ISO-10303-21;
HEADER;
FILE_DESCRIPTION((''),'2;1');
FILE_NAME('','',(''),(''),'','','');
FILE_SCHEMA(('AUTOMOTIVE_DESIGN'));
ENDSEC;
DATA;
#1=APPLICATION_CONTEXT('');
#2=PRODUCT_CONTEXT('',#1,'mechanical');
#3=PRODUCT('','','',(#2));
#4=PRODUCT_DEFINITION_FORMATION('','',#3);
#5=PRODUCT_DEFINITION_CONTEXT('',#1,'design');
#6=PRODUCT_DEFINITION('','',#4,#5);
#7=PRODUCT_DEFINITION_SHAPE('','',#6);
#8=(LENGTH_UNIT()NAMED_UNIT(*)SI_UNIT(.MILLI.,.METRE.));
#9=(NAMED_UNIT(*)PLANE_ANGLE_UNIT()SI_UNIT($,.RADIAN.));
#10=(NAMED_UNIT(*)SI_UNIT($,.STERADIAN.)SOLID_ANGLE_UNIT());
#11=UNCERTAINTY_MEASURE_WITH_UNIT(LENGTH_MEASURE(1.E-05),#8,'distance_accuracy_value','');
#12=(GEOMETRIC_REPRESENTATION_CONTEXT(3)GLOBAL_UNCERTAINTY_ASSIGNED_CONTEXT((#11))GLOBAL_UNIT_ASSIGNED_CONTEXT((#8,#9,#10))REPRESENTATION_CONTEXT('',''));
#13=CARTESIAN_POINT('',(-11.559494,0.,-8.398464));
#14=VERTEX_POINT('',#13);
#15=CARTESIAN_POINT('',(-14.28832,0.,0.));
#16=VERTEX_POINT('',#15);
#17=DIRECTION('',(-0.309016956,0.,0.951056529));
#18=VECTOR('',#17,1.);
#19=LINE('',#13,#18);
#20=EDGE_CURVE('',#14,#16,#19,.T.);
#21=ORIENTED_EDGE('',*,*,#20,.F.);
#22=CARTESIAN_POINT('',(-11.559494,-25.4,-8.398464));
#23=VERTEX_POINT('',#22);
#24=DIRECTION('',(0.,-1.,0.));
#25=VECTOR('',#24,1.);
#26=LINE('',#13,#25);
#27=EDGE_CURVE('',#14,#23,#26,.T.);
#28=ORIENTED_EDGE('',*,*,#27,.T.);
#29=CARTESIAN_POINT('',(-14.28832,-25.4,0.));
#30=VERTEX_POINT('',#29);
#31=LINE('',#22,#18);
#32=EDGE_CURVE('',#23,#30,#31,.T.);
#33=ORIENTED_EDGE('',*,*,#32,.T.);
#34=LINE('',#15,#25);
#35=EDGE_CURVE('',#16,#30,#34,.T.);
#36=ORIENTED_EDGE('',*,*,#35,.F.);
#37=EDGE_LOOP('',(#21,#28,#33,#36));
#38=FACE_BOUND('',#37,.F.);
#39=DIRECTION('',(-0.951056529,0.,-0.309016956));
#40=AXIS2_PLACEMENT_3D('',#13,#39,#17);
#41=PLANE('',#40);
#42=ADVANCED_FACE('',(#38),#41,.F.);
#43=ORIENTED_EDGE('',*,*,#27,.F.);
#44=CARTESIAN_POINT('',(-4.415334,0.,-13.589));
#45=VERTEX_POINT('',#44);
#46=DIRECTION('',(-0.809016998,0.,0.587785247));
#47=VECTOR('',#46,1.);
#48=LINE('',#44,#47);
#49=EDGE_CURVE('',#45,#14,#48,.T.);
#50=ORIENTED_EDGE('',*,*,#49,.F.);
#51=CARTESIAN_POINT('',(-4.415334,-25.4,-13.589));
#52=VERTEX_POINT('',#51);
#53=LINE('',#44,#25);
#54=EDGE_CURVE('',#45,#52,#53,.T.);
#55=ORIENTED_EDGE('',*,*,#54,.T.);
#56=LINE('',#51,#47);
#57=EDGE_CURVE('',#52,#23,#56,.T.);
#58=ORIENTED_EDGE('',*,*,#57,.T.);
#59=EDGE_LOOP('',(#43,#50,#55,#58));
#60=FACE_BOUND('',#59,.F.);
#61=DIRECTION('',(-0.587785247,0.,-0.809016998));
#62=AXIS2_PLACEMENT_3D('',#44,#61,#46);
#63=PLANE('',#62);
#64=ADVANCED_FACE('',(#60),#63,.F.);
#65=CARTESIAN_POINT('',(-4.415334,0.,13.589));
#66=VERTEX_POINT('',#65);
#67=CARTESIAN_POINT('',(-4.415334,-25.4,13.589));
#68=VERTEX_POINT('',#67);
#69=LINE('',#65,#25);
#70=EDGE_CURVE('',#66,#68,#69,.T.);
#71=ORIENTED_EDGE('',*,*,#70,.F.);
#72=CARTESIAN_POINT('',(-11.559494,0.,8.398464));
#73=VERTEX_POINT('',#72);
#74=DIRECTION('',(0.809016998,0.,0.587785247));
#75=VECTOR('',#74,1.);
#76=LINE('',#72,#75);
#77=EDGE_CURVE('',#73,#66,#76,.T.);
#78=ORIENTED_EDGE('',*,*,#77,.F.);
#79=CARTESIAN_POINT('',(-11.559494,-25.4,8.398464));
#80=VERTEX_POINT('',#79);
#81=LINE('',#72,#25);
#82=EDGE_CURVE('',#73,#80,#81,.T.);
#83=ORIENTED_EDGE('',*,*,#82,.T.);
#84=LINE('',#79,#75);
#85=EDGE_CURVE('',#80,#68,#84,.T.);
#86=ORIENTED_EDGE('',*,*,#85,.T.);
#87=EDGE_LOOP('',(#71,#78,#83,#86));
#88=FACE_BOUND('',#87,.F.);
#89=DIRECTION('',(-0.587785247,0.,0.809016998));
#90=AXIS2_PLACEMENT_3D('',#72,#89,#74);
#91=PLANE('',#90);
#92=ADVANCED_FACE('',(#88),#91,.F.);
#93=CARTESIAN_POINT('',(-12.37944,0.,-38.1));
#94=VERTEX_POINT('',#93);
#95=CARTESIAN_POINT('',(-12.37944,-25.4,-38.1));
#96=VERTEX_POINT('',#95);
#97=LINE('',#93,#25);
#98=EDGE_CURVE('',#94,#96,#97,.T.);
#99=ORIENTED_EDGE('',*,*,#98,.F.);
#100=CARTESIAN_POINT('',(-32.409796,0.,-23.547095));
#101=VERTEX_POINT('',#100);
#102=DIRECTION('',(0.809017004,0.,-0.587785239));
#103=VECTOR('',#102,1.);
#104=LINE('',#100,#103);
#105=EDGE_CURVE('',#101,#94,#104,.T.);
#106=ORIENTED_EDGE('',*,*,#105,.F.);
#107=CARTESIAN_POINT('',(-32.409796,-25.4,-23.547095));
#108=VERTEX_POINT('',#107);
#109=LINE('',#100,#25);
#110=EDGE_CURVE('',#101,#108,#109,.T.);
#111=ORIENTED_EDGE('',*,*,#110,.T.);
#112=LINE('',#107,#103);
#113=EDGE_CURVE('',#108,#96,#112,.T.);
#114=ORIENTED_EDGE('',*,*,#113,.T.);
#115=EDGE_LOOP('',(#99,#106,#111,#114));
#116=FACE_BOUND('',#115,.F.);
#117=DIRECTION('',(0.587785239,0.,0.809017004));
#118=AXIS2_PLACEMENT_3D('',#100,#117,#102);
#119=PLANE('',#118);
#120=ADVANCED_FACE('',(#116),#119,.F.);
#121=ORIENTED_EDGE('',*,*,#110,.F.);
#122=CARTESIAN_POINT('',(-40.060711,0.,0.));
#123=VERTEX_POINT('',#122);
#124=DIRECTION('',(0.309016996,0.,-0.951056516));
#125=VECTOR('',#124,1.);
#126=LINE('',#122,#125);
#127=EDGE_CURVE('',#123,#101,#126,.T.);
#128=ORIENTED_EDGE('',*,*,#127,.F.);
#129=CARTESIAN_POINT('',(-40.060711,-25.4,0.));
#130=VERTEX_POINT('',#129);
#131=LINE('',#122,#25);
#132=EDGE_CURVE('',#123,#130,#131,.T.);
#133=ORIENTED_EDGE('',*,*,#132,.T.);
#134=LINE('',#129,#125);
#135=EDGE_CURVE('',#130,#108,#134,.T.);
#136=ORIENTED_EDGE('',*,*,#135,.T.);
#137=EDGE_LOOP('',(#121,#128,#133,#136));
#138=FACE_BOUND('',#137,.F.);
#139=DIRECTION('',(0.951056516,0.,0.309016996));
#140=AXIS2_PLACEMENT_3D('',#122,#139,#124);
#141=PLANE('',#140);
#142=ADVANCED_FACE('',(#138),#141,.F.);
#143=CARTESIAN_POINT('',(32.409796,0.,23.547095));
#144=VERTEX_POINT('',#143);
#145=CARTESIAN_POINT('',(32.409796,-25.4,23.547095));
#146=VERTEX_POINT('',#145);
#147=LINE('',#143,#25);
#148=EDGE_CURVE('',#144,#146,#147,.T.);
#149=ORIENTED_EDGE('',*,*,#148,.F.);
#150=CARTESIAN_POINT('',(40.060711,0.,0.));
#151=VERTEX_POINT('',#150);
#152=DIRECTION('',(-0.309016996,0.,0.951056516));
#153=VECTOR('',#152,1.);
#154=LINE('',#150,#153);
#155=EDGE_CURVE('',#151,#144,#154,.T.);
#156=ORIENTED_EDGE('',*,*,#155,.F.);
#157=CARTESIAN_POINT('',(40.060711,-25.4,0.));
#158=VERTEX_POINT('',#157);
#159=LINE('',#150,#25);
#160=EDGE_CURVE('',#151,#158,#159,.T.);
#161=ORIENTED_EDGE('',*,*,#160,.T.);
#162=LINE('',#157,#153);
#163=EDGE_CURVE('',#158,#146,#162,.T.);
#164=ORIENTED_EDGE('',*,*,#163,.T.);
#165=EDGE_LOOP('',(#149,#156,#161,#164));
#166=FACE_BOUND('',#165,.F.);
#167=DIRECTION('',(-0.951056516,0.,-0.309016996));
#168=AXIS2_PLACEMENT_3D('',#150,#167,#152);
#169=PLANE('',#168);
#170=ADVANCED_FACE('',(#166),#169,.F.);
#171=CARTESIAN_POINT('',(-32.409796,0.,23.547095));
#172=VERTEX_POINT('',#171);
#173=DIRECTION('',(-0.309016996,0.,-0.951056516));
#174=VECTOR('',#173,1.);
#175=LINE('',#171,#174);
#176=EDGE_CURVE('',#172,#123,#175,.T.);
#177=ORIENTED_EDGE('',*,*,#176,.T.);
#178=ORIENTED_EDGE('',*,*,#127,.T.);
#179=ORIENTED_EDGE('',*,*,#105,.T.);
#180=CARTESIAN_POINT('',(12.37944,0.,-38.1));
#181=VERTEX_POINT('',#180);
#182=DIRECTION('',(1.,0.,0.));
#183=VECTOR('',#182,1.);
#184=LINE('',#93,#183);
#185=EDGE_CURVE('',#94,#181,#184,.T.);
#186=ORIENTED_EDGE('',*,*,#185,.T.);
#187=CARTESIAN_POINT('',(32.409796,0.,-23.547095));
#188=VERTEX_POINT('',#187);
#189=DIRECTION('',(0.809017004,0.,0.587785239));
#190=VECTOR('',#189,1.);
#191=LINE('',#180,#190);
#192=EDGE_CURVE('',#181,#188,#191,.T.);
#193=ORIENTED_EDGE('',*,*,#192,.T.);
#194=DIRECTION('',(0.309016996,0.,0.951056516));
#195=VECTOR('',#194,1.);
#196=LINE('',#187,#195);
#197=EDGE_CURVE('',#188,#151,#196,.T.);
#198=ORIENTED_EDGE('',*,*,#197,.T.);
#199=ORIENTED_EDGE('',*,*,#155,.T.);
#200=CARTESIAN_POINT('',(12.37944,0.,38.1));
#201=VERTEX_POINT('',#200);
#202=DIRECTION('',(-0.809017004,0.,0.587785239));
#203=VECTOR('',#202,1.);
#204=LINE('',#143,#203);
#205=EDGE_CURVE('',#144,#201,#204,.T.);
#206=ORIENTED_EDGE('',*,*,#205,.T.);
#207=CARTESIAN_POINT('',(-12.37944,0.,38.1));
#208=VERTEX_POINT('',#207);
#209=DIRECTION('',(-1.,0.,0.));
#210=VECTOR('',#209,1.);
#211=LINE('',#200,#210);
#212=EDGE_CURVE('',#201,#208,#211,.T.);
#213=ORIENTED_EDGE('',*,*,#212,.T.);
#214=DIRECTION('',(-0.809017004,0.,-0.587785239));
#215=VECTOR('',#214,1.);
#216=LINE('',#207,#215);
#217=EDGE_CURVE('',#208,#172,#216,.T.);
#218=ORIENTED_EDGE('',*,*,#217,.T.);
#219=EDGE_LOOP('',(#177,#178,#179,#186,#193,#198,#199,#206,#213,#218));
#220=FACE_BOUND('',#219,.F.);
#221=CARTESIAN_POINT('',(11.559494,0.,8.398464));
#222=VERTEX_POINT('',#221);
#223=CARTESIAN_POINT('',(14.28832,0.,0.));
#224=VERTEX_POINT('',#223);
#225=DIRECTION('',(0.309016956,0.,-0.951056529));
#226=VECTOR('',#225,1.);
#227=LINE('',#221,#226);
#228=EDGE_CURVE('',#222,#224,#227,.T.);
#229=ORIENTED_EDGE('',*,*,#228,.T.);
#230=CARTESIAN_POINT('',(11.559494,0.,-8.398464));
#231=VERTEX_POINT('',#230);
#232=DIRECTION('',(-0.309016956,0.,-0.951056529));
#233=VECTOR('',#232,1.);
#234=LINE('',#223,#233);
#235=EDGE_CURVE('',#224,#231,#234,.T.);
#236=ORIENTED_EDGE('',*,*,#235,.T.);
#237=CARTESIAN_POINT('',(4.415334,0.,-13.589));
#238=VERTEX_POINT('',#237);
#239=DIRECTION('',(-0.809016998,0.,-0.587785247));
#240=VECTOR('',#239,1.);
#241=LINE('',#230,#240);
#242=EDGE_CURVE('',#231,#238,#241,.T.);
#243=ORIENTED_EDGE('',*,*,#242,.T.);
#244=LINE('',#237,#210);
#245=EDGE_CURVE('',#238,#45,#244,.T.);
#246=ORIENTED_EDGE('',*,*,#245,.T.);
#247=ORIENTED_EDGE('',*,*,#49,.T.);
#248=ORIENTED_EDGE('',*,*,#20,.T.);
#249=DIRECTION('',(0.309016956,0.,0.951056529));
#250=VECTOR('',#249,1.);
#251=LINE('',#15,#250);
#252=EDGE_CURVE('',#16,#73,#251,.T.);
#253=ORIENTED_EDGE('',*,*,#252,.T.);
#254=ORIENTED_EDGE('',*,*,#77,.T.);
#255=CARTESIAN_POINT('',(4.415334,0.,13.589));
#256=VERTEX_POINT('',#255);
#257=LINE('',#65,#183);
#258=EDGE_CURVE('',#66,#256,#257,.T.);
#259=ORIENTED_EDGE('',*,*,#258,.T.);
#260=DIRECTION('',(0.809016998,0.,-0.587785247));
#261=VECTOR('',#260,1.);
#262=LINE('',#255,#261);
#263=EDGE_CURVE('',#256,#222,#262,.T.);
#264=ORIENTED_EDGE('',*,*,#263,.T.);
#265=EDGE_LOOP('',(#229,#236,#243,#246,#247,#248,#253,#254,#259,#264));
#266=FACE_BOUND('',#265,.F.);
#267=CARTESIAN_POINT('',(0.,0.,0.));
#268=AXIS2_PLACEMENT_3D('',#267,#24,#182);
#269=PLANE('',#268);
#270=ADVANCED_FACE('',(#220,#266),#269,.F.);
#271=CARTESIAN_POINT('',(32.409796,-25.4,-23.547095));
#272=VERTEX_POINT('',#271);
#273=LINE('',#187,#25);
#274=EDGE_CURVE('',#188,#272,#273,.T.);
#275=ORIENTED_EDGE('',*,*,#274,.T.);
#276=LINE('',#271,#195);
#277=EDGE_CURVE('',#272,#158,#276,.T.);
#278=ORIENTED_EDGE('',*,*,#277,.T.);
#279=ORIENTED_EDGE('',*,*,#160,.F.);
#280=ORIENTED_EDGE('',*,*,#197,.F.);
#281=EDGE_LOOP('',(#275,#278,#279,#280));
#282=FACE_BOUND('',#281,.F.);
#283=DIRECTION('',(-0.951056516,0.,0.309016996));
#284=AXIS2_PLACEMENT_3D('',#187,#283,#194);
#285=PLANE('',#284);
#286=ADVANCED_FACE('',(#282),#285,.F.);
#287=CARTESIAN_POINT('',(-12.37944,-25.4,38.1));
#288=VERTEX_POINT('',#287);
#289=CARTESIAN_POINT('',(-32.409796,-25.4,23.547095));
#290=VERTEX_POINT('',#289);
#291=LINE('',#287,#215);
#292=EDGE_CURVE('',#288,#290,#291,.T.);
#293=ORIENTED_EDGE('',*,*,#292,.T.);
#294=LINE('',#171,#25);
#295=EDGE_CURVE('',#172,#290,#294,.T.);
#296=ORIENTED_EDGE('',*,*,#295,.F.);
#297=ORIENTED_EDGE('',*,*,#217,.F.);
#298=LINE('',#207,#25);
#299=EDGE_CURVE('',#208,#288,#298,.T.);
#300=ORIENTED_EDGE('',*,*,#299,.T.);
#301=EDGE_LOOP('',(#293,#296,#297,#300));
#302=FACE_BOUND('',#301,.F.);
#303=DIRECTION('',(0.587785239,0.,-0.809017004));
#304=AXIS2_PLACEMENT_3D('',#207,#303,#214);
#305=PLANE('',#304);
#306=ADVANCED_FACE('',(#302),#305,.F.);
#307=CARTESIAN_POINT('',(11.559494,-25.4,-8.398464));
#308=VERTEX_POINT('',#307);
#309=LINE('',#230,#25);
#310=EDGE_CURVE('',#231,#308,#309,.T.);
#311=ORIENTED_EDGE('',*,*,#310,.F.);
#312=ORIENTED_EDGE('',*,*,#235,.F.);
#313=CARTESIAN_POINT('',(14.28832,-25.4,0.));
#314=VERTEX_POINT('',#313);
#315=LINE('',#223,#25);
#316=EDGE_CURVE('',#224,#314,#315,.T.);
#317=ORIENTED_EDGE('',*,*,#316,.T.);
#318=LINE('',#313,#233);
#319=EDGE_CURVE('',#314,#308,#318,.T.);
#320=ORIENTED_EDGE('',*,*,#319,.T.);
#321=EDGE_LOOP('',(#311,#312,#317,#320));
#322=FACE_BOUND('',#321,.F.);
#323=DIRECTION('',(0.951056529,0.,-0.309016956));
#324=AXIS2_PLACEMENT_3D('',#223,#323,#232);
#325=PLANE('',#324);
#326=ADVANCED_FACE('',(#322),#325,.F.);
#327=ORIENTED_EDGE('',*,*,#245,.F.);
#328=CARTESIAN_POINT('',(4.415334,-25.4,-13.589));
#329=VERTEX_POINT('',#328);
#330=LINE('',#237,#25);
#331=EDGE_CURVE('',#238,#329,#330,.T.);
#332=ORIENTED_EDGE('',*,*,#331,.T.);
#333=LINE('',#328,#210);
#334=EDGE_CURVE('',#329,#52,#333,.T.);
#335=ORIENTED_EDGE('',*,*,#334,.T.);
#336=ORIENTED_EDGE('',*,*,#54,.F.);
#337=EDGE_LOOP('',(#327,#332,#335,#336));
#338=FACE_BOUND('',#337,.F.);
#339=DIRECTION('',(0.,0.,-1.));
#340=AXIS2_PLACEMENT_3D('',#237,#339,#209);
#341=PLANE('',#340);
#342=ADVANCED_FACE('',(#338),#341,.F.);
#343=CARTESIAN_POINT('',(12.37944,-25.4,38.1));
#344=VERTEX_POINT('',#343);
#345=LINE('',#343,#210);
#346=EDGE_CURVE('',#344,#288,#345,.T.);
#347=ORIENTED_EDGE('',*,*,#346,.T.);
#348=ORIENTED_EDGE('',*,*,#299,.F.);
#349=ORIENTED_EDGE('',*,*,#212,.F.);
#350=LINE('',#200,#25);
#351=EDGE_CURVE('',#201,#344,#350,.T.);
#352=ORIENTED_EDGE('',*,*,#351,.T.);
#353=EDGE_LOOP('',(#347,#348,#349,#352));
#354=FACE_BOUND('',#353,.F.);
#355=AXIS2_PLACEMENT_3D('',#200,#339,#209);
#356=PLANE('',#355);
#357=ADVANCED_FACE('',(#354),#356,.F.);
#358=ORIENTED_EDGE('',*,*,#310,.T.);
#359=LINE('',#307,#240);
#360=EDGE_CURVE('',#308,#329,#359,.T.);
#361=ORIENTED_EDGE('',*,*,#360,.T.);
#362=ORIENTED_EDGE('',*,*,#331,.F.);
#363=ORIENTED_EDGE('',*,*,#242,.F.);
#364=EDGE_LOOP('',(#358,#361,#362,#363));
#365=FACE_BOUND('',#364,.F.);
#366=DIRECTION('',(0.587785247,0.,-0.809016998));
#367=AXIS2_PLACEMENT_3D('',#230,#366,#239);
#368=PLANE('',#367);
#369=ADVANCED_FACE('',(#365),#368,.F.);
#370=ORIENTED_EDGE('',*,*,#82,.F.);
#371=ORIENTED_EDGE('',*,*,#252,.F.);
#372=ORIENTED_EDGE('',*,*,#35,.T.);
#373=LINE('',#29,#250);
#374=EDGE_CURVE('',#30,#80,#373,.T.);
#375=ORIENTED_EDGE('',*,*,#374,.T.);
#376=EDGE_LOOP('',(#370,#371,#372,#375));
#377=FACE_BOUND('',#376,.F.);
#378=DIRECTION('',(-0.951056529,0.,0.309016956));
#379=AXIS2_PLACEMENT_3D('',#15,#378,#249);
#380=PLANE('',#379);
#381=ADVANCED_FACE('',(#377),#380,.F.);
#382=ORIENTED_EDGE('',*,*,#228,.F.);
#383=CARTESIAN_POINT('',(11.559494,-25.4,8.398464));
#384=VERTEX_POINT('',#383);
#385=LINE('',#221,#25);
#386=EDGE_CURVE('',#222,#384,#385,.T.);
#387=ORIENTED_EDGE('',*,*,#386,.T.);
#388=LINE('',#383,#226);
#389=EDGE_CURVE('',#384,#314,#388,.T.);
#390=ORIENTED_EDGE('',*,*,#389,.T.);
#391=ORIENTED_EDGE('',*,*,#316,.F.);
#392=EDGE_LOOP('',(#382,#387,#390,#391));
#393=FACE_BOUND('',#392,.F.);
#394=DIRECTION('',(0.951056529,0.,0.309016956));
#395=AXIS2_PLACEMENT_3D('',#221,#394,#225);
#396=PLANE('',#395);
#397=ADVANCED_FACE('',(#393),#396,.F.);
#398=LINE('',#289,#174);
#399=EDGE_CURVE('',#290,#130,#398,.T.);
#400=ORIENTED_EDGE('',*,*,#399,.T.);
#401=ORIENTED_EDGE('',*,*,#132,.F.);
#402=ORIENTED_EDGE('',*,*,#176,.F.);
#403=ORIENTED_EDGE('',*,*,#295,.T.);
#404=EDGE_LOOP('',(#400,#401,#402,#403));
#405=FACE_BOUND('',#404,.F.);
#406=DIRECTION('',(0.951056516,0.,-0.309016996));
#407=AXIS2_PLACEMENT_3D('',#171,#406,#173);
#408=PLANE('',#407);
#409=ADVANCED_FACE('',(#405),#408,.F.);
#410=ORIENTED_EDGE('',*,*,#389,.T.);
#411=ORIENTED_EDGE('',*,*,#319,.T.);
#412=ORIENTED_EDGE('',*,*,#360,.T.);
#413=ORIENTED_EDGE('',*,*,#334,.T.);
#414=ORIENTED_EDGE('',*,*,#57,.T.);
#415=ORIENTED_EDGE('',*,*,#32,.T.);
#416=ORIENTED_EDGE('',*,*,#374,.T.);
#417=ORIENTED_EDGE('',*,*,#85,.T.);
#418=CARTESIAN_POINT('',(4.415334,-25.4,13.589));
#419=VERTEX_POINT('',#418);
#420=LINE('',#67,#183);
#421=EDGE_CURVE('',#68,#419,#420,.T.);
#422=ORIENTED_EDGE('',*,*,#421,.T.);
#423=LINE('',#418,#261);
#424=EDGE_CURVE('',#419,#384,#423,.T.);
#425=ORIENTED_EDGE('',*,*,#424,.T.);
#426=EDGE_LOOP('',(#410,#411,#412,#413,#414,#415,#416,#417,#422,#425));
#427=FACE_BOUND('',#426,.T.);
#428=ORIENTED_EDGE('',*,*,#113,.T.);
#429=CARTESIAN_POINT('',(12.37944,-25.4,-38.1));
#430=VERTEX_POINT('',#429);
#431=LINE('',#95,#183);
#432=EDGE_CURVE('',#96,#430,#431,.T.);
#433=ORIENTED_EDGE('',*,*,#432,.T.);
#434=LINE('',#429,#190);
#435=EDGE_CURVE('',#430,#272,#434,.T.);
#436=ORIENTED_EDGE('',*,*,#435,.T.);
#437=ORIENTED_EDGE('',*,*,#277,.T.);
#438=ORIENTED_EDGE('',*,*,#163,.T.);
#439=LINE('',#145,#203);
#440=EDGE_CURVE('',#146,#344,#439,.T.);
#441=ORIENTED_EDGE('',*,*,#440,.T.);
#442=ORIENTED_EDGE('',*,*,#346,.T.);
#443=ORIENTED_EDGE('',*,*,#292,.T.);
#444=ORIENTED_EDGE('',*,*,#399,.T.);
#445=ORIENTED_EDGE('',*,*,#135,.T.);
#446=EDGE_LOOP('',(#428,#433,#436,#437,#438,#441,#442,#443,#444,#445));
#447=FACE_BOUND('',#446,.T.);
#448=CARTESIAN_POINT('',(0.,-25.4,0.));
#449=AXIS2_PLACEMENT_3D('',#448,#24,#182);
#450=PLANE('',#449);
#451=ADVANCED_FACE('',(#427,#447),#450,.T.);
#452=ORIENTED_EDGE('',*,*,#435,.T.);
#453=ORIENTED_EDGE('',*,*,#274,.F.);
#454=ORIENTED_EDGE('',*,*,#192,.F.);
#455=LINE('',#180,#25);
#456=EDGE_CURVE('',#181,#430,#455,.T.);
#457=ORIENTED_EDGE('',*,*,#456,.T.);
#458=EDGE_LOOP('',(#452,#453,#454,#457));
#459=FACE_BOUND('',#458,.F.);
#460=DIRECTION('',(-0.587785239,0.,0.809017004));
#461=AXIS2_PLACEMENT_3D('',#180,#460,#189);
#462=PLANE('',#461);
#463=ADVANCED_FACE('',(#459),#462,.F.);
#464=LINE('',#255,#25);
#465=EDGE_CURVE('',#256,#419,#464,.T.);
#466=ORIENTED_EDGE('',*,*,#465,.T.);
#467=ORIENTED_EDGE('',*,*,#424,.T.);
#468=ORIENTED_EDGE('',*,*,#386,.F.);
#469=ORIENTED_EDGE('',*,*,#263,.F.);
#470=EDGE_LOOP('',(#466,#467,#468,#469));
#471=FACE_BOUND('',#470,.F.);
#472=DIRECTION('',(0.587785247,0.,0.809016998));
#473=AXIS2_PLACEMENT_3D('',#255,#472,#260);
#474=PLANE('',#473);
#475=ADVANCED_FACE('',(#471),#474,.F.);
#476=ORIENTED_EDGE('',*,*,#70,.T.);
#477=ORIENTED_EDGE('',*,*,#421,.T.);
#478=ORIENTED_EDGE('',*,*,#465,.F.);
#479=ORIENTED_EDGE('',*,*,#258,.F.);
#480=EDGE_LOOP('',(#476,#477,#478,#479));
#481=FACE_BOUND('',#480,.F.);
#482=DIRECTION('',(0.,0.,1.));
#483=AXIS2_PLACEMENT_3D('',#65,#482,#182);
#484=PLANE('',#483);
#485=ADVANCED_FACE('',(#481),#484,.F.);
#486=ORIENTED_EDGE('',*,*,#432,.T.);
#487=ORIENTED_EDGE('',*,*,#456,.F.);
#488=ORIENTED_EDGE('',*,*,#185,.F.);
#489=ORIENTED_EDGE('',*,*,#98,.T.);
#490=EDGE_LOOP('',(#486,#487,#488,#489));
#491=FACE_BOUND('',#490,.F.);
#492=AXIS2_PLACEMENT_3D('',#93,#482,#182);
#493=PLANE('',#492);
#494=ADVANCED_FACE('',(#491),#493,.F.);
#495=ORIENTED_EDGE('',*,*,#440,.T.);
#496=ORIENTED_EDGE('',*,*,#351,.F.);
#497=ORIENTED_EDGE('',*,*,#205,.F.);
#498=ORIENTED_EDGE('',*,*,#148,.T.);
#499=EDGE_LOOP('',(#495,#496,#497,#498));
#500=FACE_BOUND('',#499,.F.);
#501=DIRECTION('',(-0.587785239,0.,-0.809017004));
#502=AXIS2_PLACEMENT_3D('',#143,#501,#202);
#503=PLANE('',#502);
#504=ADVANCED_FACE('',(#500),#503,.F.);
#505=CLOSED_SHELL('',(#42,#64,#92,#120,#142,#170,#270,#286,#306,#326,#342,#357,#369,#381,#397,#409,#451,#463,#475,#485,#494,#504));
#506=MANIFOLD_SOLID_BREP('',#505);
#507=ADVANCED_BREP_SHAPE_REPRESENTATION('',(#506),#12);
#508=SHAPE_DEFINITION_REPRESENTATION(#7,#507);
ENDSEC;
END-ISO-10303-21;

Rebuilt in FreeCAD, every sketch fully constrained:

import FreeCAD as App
import Part
import Sketcher

V = App.Vector
Q = App.Units.Quantity


def add_polygon(sketch, points):
    """Adds a closed chain of lines whose ends are joined by coincident constraints."""
    first, n = sketch.GeometryCount, len(points)
    for a, b in zip(points, points[1:] + points[:1]):
        sketch.addGeometry(Part.LineSegment(App.Vector(*a, 0), App.Vector(*b, 0)), False)
    for i in range(n):
        sketch.addConstraint(Sketcher.Constraint("Coincident", first + i, 2, first + (i + 1) % n, 1))

doc = App.newDocument("Part")
body = doc.addObject("PartDesign::Body", "Body")

sketch1 = body.newObject("Sketcher::SketchObject", "Sketch")
sketch1.AttachmentSupport = (doc.getObject("XZ_Plane"), [""])
sketch1.MapMode = "FlatFace"
add_polygon(sketch1, [(12, 38), (-12, 38), (-32, 24), (-40, 0), (-32, -24), (-12, -38), (12, -38), (32, -24), (40, 0), (32, 24)])
add_polygon(sketch1, [(-12, 8), (-4, 14), (4, 14), (12, 8), (14, 0), (12, -8), (4, -14), (-4, -14), (-12, -8), (-14, 0)])
sketch1.addConstraint([
    Sketcher.Constraint("Horizontal", 0),
    Sketcher.Constraint("Horizontal", 5),
    Sketcher.Constraint("Horizontal", 11),
    Sketcher.Constraint("Horizontal", 16),
    Sketcher.Constraint("Symmetric", 0, 2, 5, 2, -1, 1),
    Sketcher.Constraint("Symmetric", 1, 2, 6, 2, -1, 1),
    Sketcher.Constraint("Symmetric", 2, 2, 7, 2, -1, 1),
    Sketcher.Constraint("Symmetric", 3, 2, 8, 2, -1, 1),
    Sketcher.Constraint("Symmetric", 10, 2, 15, 2, -1, 1),
    Sketcher.Constraint("Symmetric", 12, 2, 17, 2, -1, 1),
    Sketcher.Constraint("Symmetric", 13, 2, 18, 2, -1, 1),
    Sketcher.Constraint("Symmetric", 14, 2, 19, 2, -1, 1),
    Sketcher.Constraint("Symmetric", 3, 2, 6, 2, -2),
    Sketcher.Constraint("Symmetric", 14, 2, 17, 2, -2),
    Sketcher.Constraint("PointOnObject", 2, 2, -1),
    Sketcher.Constraint("PointOnObject", 13, 2, -1),
    Sketcher.Constraint("Parallel", 4, 9),
    Sketcher.Constraint("Parallel", 6, 10),
    Sketcher.Constraint("Parallel", 9, 12),
    Sketcher.Constraint("Parallel", 8, 13),
    Sketcher.Constraint("Parallel", 12, 17),
    Sketcher.Constraint("Vertical", 0, 2, 4, 2),
    Sketcher.Constraint("Equal", 1, 2),
    Sketcher.Constraint("Equal", 12, 13),
    Sketcher.Constraint("Angle", 1, Q("-144.000001 deg")),
    Sketcher.Constraint("Angle", 2, Q("-108 deg")),
    Sketcher.Constraint("DistanceY", 4, 2, 0, 2, Q("3 in")),
    Sketcher.Constraint("DistanceY", 15, 2, 11, 2, Q("1.07 in")),
    Sketcher.Constraint("DistanceX", 0, 2, 0, 1, 24.75888),
    Sketcher.Constraint("DistanceX", 12, 2, 8, 2, 20.850302),
])
pad1 = body.newObject("PartDesign::Pad", "Pad")
pad1.Profile = sketch1
pad1.Length = Q("1 in")

doc.recompute()
